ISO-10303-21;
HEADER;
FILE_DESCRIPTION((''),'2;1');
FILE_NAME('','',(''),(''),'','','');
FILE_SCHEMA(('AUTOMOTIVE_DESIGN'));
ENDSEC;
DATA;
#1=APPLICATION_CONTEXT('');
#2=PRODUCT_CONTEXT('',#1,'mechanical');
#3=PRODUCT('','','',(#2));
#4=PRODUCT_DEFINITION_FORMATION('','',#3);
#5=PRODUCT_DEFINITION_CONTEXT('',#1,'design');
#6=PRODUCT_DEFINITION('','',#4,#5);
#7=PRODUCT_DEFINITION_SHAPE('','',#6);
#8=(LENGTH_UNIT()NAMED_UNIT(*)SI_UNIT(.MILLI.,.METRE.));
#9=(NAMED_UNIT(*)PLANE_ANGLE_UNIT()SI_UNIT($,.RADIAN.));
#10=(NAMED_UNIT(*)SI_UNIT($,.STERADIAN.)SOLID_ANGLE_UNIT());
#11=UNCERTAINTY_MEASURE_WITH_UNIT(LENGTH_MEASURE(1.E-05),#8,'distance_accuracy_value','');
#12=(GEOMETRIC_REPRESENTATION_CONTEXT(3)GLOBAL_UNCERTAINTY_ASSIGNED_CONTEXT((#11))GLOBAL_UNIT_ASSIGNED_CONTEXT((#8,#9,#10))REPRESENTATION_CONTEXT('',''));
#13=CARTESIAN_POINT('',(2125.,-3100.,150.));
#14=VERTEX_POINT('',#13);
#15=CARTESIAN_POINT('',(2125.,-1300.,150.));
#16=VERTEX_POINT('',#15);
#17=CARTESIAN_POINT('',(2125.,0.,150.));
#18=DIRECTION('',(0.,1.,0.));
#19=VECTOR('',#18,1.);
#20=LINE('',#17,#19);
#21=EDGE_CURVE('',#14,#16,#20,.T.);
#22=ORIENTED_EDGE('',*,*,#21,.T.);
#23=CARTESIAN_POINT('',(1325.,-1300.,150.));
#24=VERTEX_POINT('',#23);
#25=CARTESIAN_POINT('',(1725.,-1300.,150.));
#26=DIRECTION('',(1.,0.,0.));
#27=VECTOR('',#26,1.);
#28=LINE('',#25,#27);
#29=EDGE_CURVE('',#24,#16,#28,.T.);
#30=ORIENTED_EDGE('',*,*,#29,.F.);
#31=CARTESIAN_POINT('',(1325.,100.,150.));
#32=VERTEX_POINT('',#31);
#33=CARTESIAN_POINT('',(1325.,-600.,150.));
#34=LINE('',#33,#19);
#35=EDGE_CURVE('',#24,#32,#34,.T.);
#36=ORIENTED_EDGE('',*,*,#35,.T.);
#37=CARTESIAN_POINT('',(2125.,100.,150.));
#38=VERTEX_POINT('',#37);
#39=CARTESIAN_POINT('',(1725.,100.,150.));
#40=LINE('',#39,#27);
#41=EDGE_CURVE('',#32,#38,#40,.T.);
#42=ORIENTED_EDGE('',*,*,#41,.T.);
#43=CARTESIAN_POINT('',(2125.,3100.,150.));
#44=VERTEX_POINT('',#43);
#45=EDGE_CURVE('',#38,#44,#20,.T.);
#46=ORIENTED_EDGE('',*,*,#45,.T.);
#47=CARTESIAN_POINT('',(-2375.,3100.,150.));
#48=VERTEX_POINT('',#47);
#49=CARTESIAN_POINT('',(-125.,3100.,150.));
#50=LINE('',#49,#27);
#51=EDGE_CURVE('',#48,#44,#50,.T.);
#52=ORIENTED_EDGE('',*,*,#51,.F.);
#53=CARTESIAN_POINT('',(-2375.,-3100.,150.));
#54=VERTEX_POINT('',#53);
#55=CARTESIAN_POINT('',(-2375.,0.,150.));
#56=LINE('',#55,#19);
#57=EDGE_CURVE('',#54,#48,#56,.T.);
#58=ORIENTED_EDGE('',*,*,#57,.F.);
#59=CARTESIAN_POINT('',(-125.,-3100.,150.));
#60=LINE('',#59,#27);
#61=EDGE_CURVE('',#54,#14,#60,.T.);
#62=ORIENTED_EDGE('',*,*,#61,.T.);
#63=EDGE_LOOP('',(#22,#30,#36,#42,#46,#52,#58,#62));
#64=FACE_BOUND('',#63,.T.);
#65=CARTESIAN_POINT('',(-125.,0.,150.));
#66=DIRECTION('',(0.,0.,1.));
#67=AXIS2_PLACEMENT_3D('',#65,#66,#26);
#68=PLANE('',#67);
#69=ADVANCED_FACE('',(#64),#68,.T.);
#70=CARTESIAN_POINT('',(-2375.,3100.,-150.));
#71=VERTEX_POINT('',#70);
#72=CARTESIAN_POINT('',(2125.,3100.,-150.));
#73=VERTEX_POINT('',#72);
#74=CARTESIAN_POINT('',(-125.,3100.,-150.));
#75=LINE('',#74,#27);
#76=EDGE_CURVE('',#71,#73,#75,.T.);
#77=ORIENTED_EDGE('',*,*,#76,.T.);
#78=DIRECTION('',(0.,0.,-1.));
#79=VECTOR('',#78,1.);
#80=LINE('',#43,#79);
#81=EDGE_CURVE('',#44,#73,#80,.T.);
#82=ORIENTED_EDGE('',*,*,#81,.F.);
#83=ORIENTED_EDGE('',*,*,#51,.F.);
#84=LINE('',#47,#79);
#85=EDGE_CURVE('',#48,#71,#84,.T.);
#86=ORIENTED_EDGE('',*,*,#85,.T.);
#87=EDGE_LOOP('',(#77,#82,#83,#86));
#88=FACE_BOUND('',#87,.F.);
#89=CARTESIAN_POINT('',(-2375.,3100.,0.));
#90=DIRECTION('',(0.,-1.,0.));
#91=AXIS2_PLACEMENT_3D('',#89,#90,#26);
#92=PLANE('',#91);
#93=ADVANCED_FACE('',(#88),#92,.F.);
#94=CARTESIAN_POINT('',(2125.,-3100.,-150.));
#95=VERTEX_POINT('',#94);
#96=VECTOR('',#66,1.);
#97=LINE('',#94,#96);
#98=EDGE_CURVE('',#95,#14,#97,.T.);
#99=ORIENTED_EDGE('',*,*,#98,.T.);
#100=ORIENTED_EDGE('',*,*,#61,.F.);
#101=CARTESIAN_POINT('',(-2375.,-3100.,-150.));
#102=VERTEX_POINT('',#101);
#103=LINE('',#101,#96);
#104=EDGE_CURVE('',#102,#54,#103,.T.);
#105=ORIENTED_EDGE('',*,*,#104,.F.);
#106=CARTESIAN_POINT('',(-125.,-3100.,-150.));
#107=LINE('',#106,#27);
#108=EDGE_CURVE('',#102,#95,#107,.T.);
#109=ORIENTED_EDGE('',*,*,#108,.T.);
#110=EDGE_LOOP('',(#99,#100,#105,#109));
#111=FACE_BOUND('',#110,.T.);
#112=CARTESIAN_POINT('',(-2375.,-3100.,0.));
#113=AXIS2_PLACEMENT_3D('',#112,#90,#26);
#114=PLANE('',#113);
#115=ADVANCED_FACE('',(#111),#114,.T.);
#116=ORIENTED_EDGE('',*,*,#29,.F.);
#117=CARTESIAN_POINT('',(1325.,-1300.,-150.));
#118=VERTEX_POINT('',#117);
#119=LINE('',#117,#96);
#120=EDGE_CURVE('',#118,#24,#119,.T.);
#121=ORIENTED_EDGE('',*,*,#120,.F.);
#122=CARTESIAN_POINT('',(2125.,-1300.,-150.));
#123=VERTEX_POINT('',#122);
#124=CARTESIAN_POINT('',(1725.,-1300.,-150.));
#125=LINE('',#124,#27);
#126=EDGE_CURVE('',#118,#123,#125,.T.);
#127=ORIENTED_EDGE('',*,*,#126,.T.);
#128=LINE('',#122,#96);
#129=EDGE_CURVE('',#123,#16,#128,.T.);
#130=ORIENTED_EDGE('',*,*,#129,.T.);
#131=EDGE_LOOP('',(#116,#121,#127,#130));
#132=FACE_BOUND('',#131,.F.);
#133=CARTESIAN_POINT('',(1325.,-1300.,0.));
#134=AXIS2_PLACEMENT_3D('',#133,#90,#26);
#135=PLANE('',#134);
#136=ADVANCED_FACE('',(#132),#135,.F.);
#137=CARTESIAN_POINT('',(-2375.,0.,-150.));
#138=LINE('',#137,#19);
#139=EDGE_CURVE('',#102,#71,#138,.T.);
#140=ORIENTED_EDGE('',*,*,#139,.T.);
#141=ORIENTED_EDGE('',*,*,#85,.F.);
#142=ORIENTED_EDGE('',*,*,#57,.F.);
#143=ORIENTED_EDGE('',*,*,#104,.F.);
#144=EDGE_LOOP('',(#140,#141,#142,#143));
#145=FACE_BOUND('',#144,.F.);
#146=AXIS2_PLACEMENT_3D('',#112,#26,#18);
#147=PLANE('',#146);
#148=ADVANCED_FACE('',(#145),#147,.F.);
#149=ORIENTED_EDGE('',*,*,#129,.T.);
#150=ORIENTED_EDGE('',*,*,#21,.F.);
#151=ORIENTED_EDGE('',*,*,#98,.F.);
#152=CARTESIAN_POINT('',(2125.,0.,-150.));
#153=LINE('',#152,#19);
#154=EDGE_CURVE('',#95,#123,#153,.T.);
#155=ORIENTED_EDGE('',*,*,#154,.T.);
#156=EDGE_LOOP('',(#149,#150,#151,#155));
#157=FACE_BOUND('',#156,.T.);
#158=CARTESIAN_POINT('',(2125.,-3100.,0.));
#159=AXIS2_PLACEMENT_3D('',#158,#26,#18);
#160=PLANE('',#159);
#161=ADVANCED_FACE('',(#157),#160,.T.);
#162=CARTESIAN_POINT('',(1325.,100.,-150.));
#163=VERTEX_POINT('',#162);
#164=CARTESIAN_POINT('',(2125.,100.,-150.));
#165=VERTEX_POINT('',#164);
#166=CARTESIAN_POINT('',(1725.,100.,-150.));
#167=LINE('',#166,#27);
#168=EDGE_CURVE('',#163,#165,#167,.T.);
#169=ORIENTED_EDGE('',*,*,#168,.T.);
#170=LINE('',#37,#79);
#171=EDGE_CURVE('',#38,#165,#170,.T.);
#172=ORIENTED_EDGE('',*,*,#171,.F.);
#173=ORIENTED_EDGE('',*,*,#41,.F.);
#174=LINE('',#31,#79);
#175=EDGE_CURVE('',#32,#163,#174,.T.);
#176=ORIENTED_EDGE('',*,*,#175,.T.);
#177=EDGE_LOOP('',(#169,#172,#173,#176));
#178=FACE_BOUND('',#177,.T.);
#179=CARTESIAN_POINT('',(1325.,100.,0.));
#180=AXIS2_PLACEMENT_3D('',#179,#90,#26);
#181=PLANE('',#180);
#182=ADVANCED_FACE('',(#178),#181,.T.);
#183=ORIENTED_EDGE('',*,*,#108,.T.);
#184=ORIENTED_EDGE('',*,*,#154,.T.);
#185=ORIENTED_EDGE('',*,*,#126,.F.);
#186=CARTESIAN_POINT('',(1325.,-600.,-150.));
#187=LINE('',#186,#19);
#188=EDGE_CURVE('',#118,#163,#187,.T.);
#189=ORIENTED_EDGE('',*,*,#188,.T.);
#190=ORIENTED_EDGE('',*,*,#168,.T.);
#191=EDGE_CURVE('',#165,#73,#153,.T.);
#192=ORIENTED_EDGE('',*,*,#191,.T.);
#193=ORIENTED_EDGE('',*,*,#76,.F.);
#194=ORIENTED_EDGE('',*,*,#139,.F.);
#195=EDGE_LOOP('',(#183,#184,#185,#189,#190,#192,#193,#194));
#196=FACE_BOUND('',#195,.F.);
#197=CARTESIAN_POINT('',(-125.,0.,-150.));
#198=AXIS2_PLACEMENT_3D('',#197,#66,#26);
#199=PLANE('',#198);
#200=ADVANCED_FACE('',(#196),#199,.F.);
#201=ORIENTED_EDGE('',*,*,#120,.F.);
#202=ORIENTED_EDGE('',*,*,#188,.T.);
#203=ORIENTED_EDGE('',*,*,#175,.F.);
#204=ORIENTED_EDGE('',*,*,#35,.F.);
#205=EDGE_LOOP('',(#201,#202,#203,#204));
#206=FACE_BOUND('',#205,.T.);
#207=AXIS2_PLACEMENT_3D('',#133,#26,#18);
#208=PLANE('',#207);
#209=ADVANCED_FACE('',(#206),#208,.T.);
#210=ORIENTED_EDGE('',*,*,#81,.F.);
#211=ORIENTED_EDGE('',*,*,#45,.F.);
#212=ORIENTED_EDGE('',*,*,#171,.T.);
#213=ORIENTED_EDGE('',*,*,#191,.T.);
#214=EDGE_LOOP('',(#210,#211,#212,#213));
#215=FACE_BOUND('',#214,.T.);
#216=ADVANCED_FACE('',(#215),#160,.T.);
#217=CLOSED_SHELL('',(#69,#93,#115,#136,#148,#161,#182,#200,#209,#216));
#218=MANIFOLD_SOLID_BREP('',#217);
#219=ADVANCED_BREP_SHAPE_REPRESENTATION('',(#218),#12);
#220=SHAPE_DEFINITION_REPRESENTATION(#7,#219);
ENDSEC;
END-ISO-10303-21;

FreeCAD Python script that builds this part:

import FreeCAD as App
import Part
import Sketcher
from FreeCAD import Vector


def add_polygon(sketch, points):
    """Adds a closed chain of lines whose ends are joined by coincident constraints."""
    first, n = sketch.GeometryCount, len(points)
    for a, b in zip(points, points[1:] + points[:1]):
        sketch.addGeometry(Part.LineSegment(App.Vector(*a, 0), App.Vector(*b, 0)), False)
    for i in range(n):
        sketch.addConstraint(Sketcher.Constraint("Coincident", first + i, 2, first + (i + 1) % n, 1))

doc = App.newDocument("Part")
params = doc.addObject("Spreadsheet::Sheet", "Params")
for row, (alias, value) in enumerate([
    ("sketch1_width", "4500 mm"),
    ("sketch1_height", "6200 mm"),
    ("pad1_length", "300 mm"),
    ("sketch2_width", "800 mm"),
    ("sketch2_height", "1400 mm"),
    ("pocket1_length", "300 mm"),
], start=1):
    params.set(f"A{row}", alias)
    params.set(f"B{row}", "=" + value)
    params.setAlias(f"B{row}", alias)

body = doc.addObject("PartDesign::Body", "Body")

# Sketch on XY plane
sketch1 = body.newObject("Sketcher::SketchObject", "Sketch")
sketch1.AttachmentSupport = (doc.getObject("XY_Plane"), [""])
sketch1.MapMode = "FlatFace"
add_polygon(sketch1, [(-2375, 3100), (-2375, -3100), (2125, -3100), (2125, 3100)])  # lines 0-3
sketch1.addConstraint([
    Sketcher.Constraint("Vertical", 0),
    Sketcher.Constraint("Horizontal", 1),
    Sketcher.Constraint("Vertical", 2),
    Sketcher.Constraint("Horizontal", 3),
    Sketcher.Constraint("DistanceX", 1, 1, 1, 2, 4500.0),
    Sketcher.Constraint("DistanceY", 0, 2, 0, 1, 6200.0),
    Sketcher.Constraint("DistanceX", 0, 2, -1, 1, 2375.0),
    Sketcher.Constraint("DistanceY", 0, 2, -1, 1, 3100.0),
])
sketch1.setExpression("Constraints[8]", "Params.sketch1_width")
sketch1.setExpression("Constraints[9]", "Params.sketch1_height")
pad1 = body.newObject("PartDesign::Pad", "Pad")
pad1.Profile = sketch1
pad1.setExpression("Length", "Params.pad1_length")
pad1.Midplane = True

# Sketch on XY plane
sketch2 = body.newObject("Sketcher::SketchObject", "Sketch001")
sketch2.AttachmentSupport = (doc.getObject("XY_Plane"), [""])
sketch2.MapMode = "FlatFace"
add_polygon(sketch2, [(1325, 100), (1325, -1300), (2125, -1300), (2125, 100)])  # lines 0-3
sketch2.addConstraint([
    Sketcher.Constraint("Vertical", 0),
    Sketcher.Constraint("Horizontal", 1),
    Sketcher.Constraint("Vertical", 2),
    Sketcher.Constraint("Horizontal", 3),
    Sketcher.Constraint("DistanceX", 1, 1, 1, 2, 800.0),
    Sketcher.Constraint("DistanceY", 0, 2, 0, 1, 1400.0),
    Sketcher.Constraint("DistanceX", -1, 1, 0, 2, 1325.0),
    Sketcher.Constraint("DistanceY", 0, 2, -1, 1, 1300.0),
])
sketch2.setExpression("Constraints[8]", "Params.sketch2_width")
sketch2.setExpression("Constraints[9]", "Params.sketch2_height")
pocket1 = body.newObject("PartDesign::Pocket", "Pocket")
pocket1.Profile = sketch2
pocket1.setExpression("Length", "Params.pocket1_length")
pocket1.Midplane = True

doc.recompute()
